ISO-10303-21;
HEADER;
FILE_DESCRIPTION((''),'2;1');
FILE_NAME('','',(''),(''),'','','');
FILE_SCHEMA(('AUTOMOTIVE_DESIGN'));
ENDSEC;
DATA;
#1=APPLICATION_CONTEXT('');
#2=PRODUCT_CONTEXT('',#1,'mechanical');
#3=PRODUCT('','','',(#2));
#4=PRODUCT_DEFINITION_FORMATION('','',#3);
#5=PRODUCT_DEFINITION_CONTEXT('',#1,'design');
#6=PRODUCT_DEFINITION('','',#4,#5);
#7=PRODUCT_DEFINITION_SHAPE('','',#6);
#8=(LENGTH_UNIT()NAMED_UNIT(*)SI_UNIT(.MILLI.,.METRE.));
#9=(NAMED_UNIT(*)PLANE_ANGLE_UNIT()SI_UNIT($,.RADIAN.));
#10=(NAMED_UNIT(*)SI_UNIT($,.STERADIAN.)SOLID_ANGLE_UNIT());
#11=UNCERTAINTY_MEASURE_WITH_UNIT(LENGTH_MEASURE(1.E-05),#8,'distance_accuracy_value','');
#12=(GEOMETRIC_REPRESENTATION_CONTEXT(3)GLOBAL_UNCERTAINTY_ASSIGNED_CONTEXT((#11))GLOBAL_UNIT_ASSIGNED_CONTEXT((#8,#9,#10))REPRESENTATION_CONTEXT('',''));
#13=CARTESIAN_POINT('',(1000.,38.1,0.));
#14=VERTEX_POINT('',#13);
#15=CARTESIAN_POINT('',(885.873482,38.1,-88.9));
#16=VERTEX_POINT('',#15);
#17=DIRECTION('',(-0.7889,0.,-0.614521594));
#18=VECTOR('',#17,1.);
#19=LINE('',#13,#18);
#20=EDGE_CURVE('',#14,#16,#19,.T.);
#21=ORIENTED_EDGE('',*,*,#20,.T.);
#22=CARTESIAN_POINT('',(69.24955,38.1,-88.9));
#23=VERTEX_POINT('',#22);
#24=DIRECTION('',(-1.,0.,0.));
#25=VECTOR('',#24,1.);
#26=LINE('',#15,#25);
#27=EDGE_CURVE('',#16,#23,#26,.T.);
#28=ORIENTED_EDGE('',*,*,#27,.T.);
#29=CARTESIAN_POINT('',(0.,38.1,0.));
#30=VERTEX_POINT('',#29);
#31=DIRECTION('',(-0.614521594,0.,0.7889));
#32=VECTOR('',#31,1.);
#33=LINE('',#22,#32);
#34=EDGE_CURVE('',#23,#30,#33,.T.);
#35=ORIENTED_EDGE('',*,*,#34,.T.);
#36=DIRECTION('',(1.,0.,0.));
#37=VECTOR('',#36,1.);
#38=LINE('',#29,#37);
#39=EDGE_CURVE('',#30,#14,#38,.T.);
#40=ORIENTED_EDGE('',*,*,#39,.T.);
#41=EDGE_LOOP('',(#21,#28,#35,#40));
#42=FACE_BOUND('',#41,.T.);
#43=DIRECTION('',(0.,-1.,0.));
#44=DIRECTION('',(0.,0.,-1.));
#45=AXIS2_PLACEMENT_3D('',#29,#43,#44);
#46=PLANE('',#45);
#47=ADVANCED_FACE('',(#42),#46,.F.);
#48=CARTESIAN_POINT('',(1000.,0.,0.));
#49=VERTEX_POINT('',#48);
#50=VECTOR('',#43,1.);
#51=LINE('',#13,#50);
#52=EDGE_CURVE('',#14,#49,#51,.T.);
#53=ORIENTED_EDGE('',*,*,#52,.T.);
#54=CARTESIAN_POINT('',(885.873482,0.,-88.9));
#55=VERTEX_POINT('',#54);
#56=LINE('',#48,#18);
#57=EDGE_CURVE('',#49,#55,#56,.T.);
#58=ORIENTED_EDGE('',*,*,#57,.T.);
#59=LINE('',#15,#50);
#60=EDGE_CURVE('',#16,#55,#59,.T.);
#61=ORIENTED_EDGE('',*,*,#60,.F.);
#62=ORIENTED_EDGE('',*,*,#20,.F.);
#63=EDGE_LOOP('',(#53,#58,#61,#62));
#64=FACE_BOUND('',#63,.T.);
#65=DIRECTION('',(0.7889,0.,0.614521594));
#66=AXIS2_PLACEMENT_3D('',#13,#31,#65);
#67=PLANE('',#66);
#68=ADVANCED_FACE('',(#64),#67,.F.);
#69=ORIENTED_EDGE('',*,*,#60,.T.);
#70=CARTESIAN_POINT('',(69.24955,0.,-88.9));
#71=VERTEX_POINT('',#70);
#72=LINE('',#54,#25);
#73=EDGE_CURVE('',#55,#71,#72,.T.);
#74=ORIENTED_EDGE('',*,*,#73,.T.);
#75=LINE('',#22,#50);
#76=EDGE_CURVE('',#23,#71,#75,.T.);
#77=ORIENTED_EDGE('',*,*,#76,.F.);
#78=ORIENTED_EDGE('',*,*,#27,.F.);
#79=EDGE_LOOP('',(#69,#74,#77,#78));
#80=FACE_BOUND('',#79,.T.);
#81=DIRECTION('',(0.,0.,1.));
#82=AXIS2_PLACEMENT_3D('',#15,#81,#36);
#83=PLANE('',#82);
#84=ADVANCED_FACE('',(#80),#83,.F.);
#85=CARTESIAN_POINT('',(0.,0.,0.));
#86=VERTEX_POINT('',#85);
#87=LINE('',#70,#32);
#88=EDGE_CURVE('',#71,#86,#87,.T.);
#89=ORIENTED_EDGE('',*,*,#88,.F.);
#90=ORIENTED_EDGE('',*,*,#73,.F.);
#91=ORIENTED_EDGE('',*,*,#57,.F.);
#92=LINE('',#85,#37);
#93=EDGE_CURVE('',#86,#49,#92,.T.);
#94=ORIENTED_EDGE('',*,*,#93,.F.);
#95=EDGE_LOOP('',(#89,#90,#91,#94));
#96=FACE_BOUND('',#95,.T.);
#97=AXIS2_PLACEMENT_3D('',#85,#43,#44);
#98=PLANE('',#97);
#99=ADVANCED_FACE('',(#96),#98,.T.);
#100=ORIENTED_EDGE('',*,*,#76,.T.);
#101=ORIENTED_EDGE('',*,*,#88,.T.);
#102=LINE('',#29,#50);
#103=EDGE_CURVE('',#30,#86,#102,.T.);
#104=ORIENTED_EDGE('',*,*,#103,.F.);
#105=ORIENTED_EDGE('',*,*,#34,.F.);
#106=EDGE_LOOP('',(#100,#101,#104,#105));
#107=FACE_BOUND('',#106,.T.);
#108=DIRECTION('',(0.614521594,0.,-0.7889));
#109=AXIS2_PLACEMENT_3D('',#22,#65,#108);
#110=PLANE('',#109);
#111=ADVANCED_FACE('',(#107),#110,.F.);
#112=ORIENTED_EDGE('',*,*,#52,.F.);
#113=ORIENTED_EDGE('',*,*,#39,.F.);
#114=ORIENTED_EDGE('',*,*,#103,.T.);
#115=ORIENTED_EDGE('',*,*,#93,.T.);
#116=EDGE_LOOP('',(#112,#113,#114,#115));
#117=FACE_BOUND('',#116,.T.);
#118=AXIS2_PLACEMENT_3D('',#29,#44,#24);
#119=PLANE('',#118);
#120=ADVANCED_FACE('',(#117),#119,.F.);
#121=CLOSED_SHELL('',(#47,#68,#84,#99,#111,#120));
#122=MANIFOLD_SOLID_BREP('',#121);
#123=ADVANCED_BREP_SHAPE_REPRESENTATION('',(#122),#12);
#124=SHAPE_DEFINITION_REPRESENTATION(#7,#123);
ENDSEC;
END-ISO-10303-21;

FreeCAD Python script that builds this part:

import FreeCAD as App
import Part
import Sketcher
from FreeCAD import Vector
Q = App.Units.Quantity

doc = App.newDocument("Part")
body = doc.addObject("PartDesign::Body", "Body")

# Sketch on XZ plane
sketch1 = doc.addObject("Sketcher::SketchObject", "Sketch")
body.addObject(sketch1)
sketch1.AttachmentSupport = (doc.XZ_Plane, [""])
sketch1.MapMode = "FlatFace"
sketch1.addGeometry([
    Part.LineSegment(Vector(0, 0, 0), Vector(1000, 0, 0)),
    Part.LineSegment(Vector(1000, 0, 0), Vector(886, -89, 0)),
    Part.LineSegment(Vector(886, -89, 0), Vector(69, -89, 0)),
    Part.LineSegment(Vector(69, -89, 0), Vector(0, 0, 0)),
], False)
sketch1.addConstraint([
    Sketcher.Constraint("Coincident", 0, 2, 1, 1),
    Sketcher.Constraint("Coincident", 1, 2, 2, 1),
    Sketcher.Constraint("Coincident", 2, 2, 3, 1),
    Sketcher.Constraint("Coincident", 3, 2, 0, 1),
    Sketcher.Constraint("Horizontal", 0),
    Sketcher.Constraint("Horizontal", 2),
    Sketcher.Constraint("Coincident", 3, 2, -1, 1),
    Sketcher.Constraint("Perpendicular", 1, 3),
    Sketcher.Constraint("DistanceX", 0, 1, 0, 2, Q("1000 mm")),
    Sketcher.Constraint("DistanceY", 1, 2, -1, 1, Q("88.9 mm")),
    Sketcher.Constraint("DistanceX", 2, 2, 2, 1, Q("816.623932 mm")),
])
pad1 = doc.addObject("PartDesign::Pad", "Pad")
body.addObject(pad1)
pad1.Profile = sketch1
pad1.Length = 38.1
pad1.Reversed = True

doc.recompute()
